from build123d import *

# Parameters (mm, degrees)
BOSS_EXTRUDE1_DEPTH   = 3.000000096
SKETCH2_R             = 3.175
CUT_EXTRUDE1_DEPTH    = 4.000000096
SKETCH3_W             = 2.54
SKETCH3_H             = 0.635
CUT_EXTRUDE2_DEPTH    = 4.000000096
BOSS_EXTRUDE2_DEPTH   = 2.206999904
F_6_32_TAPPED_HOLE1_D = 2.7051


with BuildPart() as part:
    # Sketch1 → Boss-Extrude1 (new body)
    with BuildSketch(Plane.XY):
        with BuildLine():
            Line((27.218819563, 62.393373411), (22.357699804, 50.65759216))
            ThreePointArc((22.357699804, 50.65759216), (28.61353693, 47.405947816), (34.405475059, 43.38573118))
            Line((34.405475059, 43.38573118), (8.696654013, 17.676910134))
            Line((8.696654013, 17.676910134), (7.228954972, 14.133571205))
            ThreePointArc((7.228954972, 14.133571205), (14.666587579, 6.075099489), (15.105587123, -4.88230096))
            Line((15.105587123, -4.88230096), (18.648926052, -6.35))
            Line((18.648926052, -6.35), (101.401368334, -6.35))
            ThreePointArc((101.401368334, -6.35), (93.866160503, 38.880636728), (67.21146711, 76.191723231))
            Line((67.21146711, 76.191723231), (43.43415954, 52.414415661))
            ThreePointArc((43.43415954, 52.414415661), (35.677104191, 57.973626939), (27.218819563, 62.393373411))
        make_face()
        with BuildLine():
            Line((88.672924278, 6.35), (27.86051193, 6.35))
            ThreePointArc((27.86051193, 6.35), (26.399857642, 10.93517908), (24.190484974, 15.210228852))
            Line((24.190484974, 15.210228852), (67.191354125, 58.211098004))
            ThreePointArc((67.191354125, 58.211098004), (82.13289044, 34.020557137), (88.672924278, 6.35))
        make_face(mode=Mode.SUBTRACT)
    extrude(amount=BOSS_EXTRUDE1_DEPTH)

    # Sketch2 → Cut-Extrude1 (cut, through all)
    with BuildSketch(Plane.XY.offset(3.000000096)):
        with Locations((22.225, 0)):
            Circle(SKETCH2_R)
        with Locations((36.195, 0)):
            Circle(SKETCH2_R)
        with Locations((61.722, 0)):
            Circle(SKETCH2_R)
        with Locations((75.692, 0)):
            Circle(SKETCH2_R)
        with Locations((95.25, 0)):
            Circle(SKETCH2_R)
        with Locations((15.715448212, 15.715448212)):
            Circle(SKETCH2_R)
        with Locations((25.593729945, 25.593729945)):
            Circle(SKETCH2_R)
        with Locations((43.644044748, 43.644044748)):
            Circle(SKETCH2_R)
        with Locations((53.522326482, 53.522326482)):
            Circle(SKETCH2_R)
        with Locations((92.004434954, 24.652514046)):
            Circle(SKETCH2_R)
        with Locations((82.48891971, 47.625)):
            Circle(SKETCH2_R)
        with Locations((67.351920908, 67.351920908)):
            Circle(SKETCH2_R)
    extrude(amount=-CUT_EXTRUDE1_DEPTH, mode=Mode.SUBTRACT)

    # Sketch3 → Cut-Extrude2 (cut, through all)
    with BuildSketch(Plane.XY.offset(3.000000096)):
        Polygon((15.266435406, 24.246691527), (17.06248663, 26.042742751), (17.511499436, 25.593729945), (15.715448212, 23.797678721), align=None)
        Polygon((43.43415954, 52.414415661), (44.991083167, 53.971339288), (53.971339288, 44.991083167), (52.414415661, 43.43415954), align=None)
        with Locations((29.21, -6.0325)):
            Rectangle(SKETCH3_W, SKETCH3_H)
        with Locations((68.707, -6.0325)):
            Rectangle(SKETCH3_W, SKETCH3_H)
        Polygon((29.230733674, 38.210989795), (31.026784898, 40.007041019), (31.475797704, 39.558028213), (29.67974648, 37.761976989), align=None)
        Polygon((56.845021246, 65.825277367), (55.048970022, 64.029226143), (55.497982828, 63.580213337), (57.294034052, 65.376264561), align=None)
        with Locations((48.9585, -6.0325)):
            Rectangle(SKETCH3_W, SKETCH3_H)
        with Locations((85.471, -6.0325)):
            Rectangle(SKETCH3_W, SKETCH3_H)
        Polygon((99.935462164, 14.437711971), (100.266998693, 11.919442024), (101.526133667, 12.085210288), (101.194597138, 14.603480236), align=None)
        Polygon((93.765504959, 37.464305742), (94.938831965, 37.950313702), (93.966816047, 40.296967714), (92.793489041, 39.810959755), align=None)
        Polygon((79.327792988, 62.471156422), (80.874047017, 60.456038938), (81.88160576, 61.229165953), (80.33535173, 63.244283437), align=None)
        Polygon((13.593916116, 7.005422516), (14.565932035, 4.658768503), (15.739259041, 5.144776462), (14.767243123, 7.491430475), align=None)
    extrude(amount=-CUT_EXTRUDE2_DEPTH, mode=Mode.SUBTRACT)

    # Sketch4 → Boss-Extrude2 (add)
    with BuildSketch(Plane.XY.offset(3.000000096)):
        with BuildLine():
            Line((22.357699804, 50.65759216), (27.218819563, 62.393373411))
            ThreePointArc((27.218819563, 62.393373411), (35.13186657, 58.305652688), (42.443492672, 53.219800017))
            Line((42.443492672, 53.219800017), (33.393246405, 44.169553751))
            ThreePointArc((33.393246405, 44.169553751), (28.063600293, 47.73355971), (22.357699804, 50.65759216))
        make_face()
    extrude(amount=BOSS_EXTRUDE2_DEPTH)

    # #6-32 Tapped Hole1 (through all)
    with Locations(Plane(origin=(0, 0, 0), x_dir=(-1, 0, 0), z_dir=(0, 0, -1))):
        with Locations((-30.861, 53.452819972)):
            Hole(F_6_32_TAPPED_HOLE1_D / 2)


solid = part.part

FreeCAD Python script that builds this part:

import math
import FreeCAD as App
import Part
import Sketcher

V = App.Vector
Q = App.Units.Quantity

doc = App.newDocument("Part")
body = doc.addObject("PartDesign::Body", "Body")

# Sketch on XY plane
sketch1 = body.newObject("Sketcher::SketchObject", "Sketch")
sketch1.AttachmentSupport = (doc.getObject("XY_Plane"), [""])
sketch1.MapMode = "FlatFace"
sketch1.addGeometry(Part.LineSegment(V(27.2, 62.4, 0), V(22.4, 50.7, 0)), False)
sketch1.addGeometry(Part.ArcOfCircle(Part.Circle(V(0, 0, 0), V(0, 0, 1), 55.4), math.radians(51.59), math.radians(66.19)), False)
sketch1.addGeometry(Part.LineSegment(V(34.4, 43.4, 0), V(8.7, 17.7, 0)), False)
sketch1.addGeometry(Part.LineSegment(V(8.7, 17.7, 0), V(7.2, 14.1, 0)), False)
sketch1.addGeometry(Part.ArcOfCircle(Part.Circle(V(0, 0, 0), V(0, 0, 1), 15.9), math.radians(-18), math.radians(63)), False)
sketch1.addGeometry(Part.LineSegment(V(15.1, -4.9, 0), V(18.6, -6.3, 0)), False)
sketch1.addGeometry(Part.LineSegment(V(18.6, -6.3, 0), V(101.4, -6.3, 0)), False)
sketch1.addGeometry(Part.ArcOfCircle(Part.Circle(V(0, 0, 0), V(0, 0, 1), 101.6), math.radians(-4), math.radians(49)), False)
sketch1.addGeometry(Part.LineSegment(V(67.2, 76.2, 0), V(43.4, 52.4, 0)), False)
sketch1.addGeometry(Part.ArcOfCircle(Part.Circle(V(0, 0, 0), V(0, 0, 1), 68.1), math.radians(50.35), math.radians(66.43)), False)
sketch1.addGeometry(Part.ArcOfCircle(Part.Circle(V(0, 0, 0), V(0, 0, 1), 88.9), math.radians(4), math.radians(41)), False)
sketch1.addGeometry(Part.LineSegment(V(88.7, 6.3, 0), V(27.9, 6.3, 0)), False)
sketch1.addGeometry(Part.ArcOfCircle(Part.Circle(V(0, 0, 0), V(0, 0, 1), 28.6), math.radians(12.84), math.radians(32.16)), False)
sketch1.addGeometry(Part.LineSegment(V(24.2, 15.2, 0), V(67.2, 58.2, 0)), False)
sketch1.addConstraint(Sketcher.Constraint("Coincident", 0, 2, 1, 2))
sketch1.addConstraint(Sketcher.Constraint("Coincident", 1, 1, 2, 1))
sketch1.addConstraint(Sketcher.Constraint("Coincident", 2, 2, 3, 1))
sketch1.addConstraint(Sketcher.Constraint("Coincident", 3, 2, 4, 2))
sketch1.addConstraint(Sketcher.Constraint("Coincident", 4, 1, 5, 1))
sketch1.addConstraint(Sketcher.Constraint("Coincident", 5, 2, 6, 1))
sketch1.addConstraint(Sketcher.Constraint("Coincident", 6, 2, 7, 1))
sketch1.addConstraint(Sketcher.Constraint("Coincident", 7, 2, 8, 1))
sketch1.addConstraint(Sketcher.Constraint("Coincident", 8, 2, 9, 1))
sketch1.addConstraint(Sketcher.Constraint("Coincident", 9, 2, 0, 1))
sketch1.addConstraint(Sketcher.Constraint("Coincident", 10, 1, 11, 1))
sketch1.addConstraint(Sketcher.Constraint("Coincident", 11, 2, 12, 1))
sketch1.addConstraint(Sketcher.Constraint("Coincident", 12, 2, 13, 1))
sketch1.addConstraint(Sketcher.Constraint("Coincident", 13, 2, 10, 2))
sketch1.addConstraint(Sketcher.Constraint("Horizontal", 6))
sketch1.addConstraint(Sketcher.Constraint("Horizontal", 11))
sketch1.addConstraint(Sketcher.Constraint("Coincident", 1, 3, -1, 1))
sketch1.addConstraint(Sketcher.Constraint("Coincident", 4, 3, -1, 1))
sketch1.addConstraint(Sketcher.Constraint("Coincident", 7, 3, -1, 1))
sketch1.addConstraint(Sketcher.Constraint("Coincident", 9, 3, -1, 1))
sketch1.addConstraint(Sketcher.Constraint("Coincident", 10, 3, -1, 1))
sketch1.addConstraint(Sketcher.Constraint("Coincident", 12, 3, -1, 1))
sketch1.addConstraint(Sketcher.Constraint("Parallel", 0, 3))
sketch1.addConstraint(Sketcher.Constraint("Perpendicular", 3, 5))
sketch1.addConstraint(Sketcher.Constraint("Parallel", 2, 8))
sketch1.addConstraint(Sketcher.Constraint("Parallel", 8, 13))
sketch1.addConstraint(Sketcher.Constraint("Equal", 3, 5))
sketch1.addConstraint(Sketcher.Constraint("Radius", 7, Q("4 in")))
sketch1.addConstraint(Sketcher.Constraint("Radius", 10, Q("3.5 in")))
sketch1.addConstraint(Sketcher.Constraint("Radius", 1, Q("2.18 in")))
sketch1.addConstraint(Sketcher.Constraint("Radius", 9, Q("2.68 in")))
sketch1.addConstraint(Sketcher.Constraint("Angle", 2, Q("-135 deg")))
sketch1.addConstraint(Sketcher.Constraint("Radius", 4, Q("0.625 in")))
sketch1.addConstraint(Sketcher.Constraint("Radius", 12, Q("1.125 in")))
sketch1.addConstraint(Sketcher.Constraint("Angle", 0, Q("-112.5 deg")))
sketch1.addConstraint(Sketcher.Constraint("DistanceY", 6, 2, 10, 1, Q("0.5 in")))
sketch1.addConstraint(Sketcher.Constraint("DistanceY", 5, 2, -1, 1, Q("0.25 in")))
sketch1.addConstraint(Sketcher.Constraint("DistanceX", -1, 1, 0, 2, 22.3577))
sketch1.addConstraint(Sketcher.Constraint("DistanceY", 4, 1, -1, 1, 4.882301))
sketch1.addConstraint(Sketcher.Constraint("DistanceY", -1, 1, 13, 2, 58.211098))
sketch1.addConstraint(Sketcher.Constraint("DistanceX", 7, 2, 6, 2, 34.189901))
sketch1.addConstraint(Sketcher.Constraint("DistanceY", -1, 1, 1, 1, 43.385731))
pad1 = body.newObject("PartDesign::Pad", "Pad")
pad1.Profile = sketch1
pad1.Length = 3

# Sketch on XY plane
sketch2 = body.newObject("Sketcher::SketchObject", "Sketch001")
sketch2.AttachmentSupport = (doc.getObject("XY_Plane"), [""])
sketch2.MapMode = "FlatFace"
sketch2.AttachmentOffset = App.Placement(V(0, 0, 3), App.Rotation())
sketch2.addGeometry(Part.Circle(V(22.2, 0, 0), V(0, 0, 1), 3.2), False)
sketch2.addGeometry(Part.Circle(V(36.2, 0, 0), V(0, 0, 1), 3.2), False)
sketch2.addGeometry(Part.Circle(V(61.7, 0, 0), V(0, 0, 1), 3.2), False)
sketch2.addGeometry(Part.Circle(V(75.7, 0, 0), V(0, 0, 1), 3.2), False)
sketch2.addGeometry(Part.Circle(V(95.2, 0, 0), V(0, 0, 1), 3.2), False)
sketch2.addGeometry(Part.Circle(V(15.7, 15.7, 0), V(0, 0, 1), 3.2), False)
sketch2.addGeometry(Part.Circle(V(25.6, 25.6, 0), V(0, 0, 1), 3.2), False)
sketch2.addGeometry(Part.Circle(V(43.6, 43.6, 0), V(0, 0, 1), 3.2), False)
sketch2.addGeometry(Part.Circle(V(53.5, 53.5, 0), V(0, 0, 1), 3.2), False)
sketch2.addGeometry(Part.Circle(V(92, 24.7, 0), V(0, 0, 1), 3.2), False)
sketch2.addGeometry(Part.Circle(V(82.5, 47.6, 0), V(0, 0, 1), 3.2), False)
sketch2.addGeometry(Part.Circle(V(67.4, 67.4, 0), V(0, 0, 1), 3.2), False)
sketch2.addConstraint(Sketcher.Constraint("Equal", 0, 1))
sketch2.addConstraint(Sketcher.Constraint("Equal", 1, 2))
sketch2.addConstraint(Sketcher.Constraint("Equal", 2, 3))
sketch2.addConstraint(Sketcher.Constraint("Equal", 3, 4))
sketch2.addConstraint(Sketcher.Constraint("Equal", 4, 5))
sketch2.addConstraint(Sketcher.Constraint("Equal", 5, 6))
sketch2.addConstraint(Sketcher.Constraint("Equal", 6, 7))
sketch2.addConstraint(Sketcher.Constraint("Equal", 7, 8))
sketch2.addConstraint(Sketcher.Constraint("Equal", 8, 9))
sketch2.addConstraint(Sketcher.Constraint("Equal", 9, 10))
sketch2.addConstraint(Sketcher.Constraint("Equal", 10, 11))
sketch2.addConstraint(Sketcher.Constraint("PointOnObject", 0, 3, -1))
sketch2.addConstraint(Sketcher.Constraint("PointOnObject", 1, 3, -1))
sketch2.addConstraint(Sketcher.Constraint("PointOnObject", 2, 3, -1))
sketch2.addConstraint(Sketcher.Constraint("PointOnObject", 3, 3, -1))
sketch2.addConstraint(Sketcher.Constraint("PointOnObject", 4, 3, -1))
sketch2.addConstraint(Sketcher.Constraint("Diameter", 0, Q("0.25 in")))
sketch2.addConstraint(Sketcher.Constraint("DistanceX", -1, 1, 2, 3, Q("2.43 in")))
sketch2.addConstraint(Sketcher.Constraint("DistanceX", -1, 1, 3, 3, Q("2.98 in")))
sketch2.addConstraint(Sketcher.Constraint("DistanceX", -1, 1, 4, 3, Q("3.75 in")))
sketch2.addConstraint(Sketcher.Constraint("DistanceX", 0, 3, 1, 3, Q("0.55 in")))
sketch2.addConstraint(Sketcher.Constraint("DistanceX", -1, 1, 0, 3, Q("0.875 in")))
sketch2.addConstraint(Sketcher.Constraint("DistanceY", -1, 1, 10, 3, Q("1.875 in")))
sketch2.addConstraint(Sketcher.Constraint("DistanceX", 11, 3, 10, 3, 15.136999))
sketch2.addConstraint(Sketcher.Constraint("DistanceX", -1, 1, 5, 3, 15.715448))
sketch2.addConstraint(Sketcher.Constraint("DistanceY", -1, 1, 5, 3, 15.715448))
sketch2.addConstraint(Sketcher.Constraint("DistanceX", -1, 1, 6, 3, 25.59373))
sketch2.addConstraint(Sketcher.Constraint("DistanceY", -1, 1, 6, 3, 25.59373))
sketch2.addConstraint(Sketcher.Constraint("DistanceX", -1, 1, 10, 3, 82.48892))
sketch2.addConstraint(Sketcher.Constraint("DistanceY", -1, 1, 11, 3, 67.351921))
sketch2.addConstraint(Sketcher.Constraint("DistanceX", 7, 3, 8, 3, 9.878282))
sketch2.addConstraint(Sketcher.Constraint("DistanceY", 7, 3, 8, 3, 9.878282))
sketch2.addConstraint(Sketcher.Constraint("DistanceX", 5, 3, 8, 3, 37.806878))
sketch2.addConstraint(Sketcher.Constraint("DistanceY", 5, 3, 8, 3, 37.806878))
sketch2.addConstraint(Sketcher.Constraint("DistanceX", 8, 3, 9, 3, 38.482108))
sketch2.addConstraint(Sketcher.Constraint("DistanceY", 9, 3, 7, 3, 18.991531))
pocket1 = body.newObject("PartDesign::Pocket", "Pocket")
pocket1.Profile = sketch2
pocket1.Type = "ThroughAll"

# Sketch on XY plane
sketch3 = body.newObject("Sketcher::SketchObject", "Sketch002")
sketch3.AttachmentSupport = (doc.getObject("XY_Plane"), [""])
sketch3.MapMode = "FlatFace"
sketch3.AttachmentOffset = App.Placement(V(0, 0, 3), App.Rotation())
sketch3.addGeometry(Part.LineSegment(V(17.1, 26, 0), V(15.3, 24.2, 0)), False)
sketch3.addGeometry(Part.LineSegment(V(15.3, 24.2, 0), V(15.7, 23.8, 0)), False)
sketch3.addGeometry(Part.LineSegment(V(15.7, 23.8, 0), V(17.5, 25.6, 0)), False)
sketch3.addGeometry(Part.LineSegment(V(17.5, 25.6, 0), V(17.1, 26, 0)), False)
sketch3.addGeometry(Part.LineSegment(V(45, 54, 0), V(43.4, 52.4, 0)), False)
sketch3.addGeometry(Part.LineSegment(V(43.4, 52.4, 0), V(52.4, 43.4, 0)), False)
sketch3.addGeometry(Part.LineSegment(V(52.4, 43.4, 0), V(54, 45, 0)), False)
sketch3.addGeometry(Part.LineSegment(V(54, 45, 0), V(45, 54, 0)), False)
sketch3.addGeometry(Part.LineSegment(V(27.9, -5.7, 0), V(27.9, -6.3, 0)), False)
sketch3.addGeometry(Part.LineSegment(V(27.9, -6.3, 0), V(30.5, -6.3, 0)), False)
sketch3.addGeometry(Part.LineSegment(V(30.5, -6.3, 0), V(30.5, -5.7, 0)), False)
sketch3.addGeometry(Part.LineSegment(V(30.5, -5.7, 0), V(27.9, -5.7, 0)), False)
sketch3.addGeometry(Part.LineSegment(V(67.4, -5.7, 0), V(67.4, -6.3, 0)), False)
sketch3.addGeometry(Part.LineSegment(V(67.4, -6.3, 0), V(70, -6.3, 0)), False)
sketch3.addGeometry(Part.LineSegment(V(70, -6.3, 0), V(70, -5.7, 0)), False)
sketch3.addGeometry(Part.LineSegment(V(70, -5.7, 0), V(67.4, -5.7, 0)), False)
sketch3.addGeometry(Part.LineSegment(V(31, 40, 0), V(29.2, 38.2, 0)), False)
sketch3.addGeometry(Part.LineSegment(V(29.2, 38.2, 0), V(29.7, 37.8, 0)), False)
sketch3.addGeometry(Part.LineSegment(V(29.7, 37.8, 0), V(31.5, 39.6, 0)), False)
sketch3.addGeometry(Part.LineSegment(V(31.5, 39.6, 0), V(31, 40, 0)), False)
sketch3.addGeometry(Part.LineSegment(V(56.8, 65.8, 0), V(55, 64, 0)), False)
sketch3.addGeometry(Part.LineSegment(V(55, 64, 0), V(55.5, 63.6, 0)), False)
sketch3.addGeometry(Part.LineSegment(V(55.5, 63.6, 0), V(57.3, 65.4, 0)), False)
sketch3.addGeometry(Part.LineSegment(V(57.3, 65.4, 0), V(56.8, 65.8, 0)), False)
sketch3.addGeometry(Part.LineSegment(V(47.7, -5.7, 0), V(47.7, -6.3, 0)), False)
sketch3.addGeometry(Part.LineSegment(V(47.7, -6.3, 0), V(50.2, -6.3, 0)), False)
sketch3.addGeometry(Part.LineSegment(V(50.2, -6.3, 0), V(50.2, -5.7, 0)), False)
sketch3.addGeometry(Part.LineSegment(V(50.2, -5.7, 0), V(47.7, -5.7, 0)), False)
sketch3.addGeometry(Part.LineSegment(V(84.2, -5.7, 0), V(84.2, -6.3, 0)), False)
sketch3.addGeometry(Part.LineSegment(V(84.2, -6.3, 0), V(86.7, -6.3, 0)), False)
sketch3.addGeometry(Part.LineSegment(V(86.7, -6.3, 0), V(86.7, -5.7, 0)), False)
sketch3.addGeometry(Part.LineSegment(V(86.7, -5.7, 0), V(84.2, -5.7, 0)), False)
sketch3.addGeometry(Part.LineSegment(V(99.9, 14.4, 0), V(100.3, 11.9, 0)), False)
sketch3.addGeometry(Part.LineSegment(V(100.3, 11.9, 0), V(101.5, 12.1, 0)), False)
sketch3.addGeometry(Part.LineSegment(V(101.5, 12.1, 0), V(101.2, 14.6, 0)), False)
sketch3.addGeometry(Part.LineSegment(V(101.2, 14.6, 0), V(99.9, 14.4, 0)), False)
sketch3.addGeometry(Part.LineSegment(V(93.8, 37.5, 0), V(94.9, 38, 0)), False)
sketch3.addGeometry(Part.LineSegment(V(94.9, 38, 0), V(94, 40.3, 0)), False)
sketch3.addGeometry(Part.LineSegment(V(94, 40.3, 0), V(92.8, 39.8, 0)), False)
sketch3.addGeometry(Part.LineSegment(V(92.8, 39.8, 0), V(93.8, 37.5, 0)), False)
sketch3.addGeometry(Part.LineSegment(V(79.3, 62.5, 0), V(80.9, 60.5, 0)), False)
sketch3.addGeometry(Part.LineSegment(V(80.9, 60.5, 0), V(81.9, 61.2, 0)), False)
sketch3.addGeometry(Part.LineSegment(V(81.9, 61.2, 0), V(80.3, 63.2, 0)), False)
sketch3.addGeometry(Part.LineSegment(V(80.3, 63.2, 0), V(79.3, 62.5, 0)), False)
sketch3.addGeometry(Part.LineSegment(V(13.6, 7, 0), V(14.6, 4.7, 0)), False)
sketch3.addGeometry(Part.LineSegment(V(14.6, 4.7, 0), V(15.7, 5.1, 0)), False)
sketch3.addGeometry(Part.LineSegment(V(15.7, 5.1, 0), V(14.8, 7.5, 0)), False)
sketch3.addGeometry(Part.LineSegment(V(14.8, 7.5, 0), V(13.6, 7, 0)), False)
sketch3.addConstraint(Sketcher.Constraint("Coincident", 0, 2, 1, 1))
sketch3.addConstraint(Sketcher.Constraint("Coincident", 1, 2, 2, 1))
sketch3.addConstraint(Sketcher.Constraint("Coincident", 2, 2, 3, 1))
sketch3.addConstraint(Sketcher.Constraint("Coincident", 3, 2, 0, 1))
sketch3.addConstraint(Sketcher.Constraint("Coincident", 4, 2, 5, 1))
sketch3.addConstraint(Sketcher.Constraint("Coincident", 5, 2, 6, 1))
sketch3.addConstraint(Sketcher.Constraint("Coincident", 6, 2, 7, 1))
sketch3.addConstraint(Sketcher.Constraint("Coincident", 7, 2, 4, 1))
sketch3.addConstraint(Sketcher.Constraint("Coincident", 8, 2, 9, 1))
sketch3.addConstraint(Sketcher.Constraint("Coincident", 9, 2, 10, 1))
sketch3.addConstraint(Sketcher.Constraint("Coincident", 10, 2, 11, 1))
sketch3.addConstraint(Sketcher.Constraint("Coincident", 11, 2, 8, 1))
sketch3.addConstraint(Sketcher.Constraint("Coincident", 12, 2, 13, 1))
sketch3.addConstraint(Sketcher.Constraint("Coincident", 13, 2, 14, 1))
sketch3.addConstraint(Sketcher.Constraint("Coincident", 14, 2, 15, 1))
sketch3.addConstraint(Sketcher.Constraint("Coincident", 15, 2, 12, 1))
sketch3.addConstraint(Sketcher.Constraint("Coincident", 16, 2, 17, 1))
sketch3.addConstraint(Sketcher.Constraint("Coincident", 17, 2, 18, 1))
sketch3.addConstraint(Sketcher.Constraint("Coincident", 18, 2, 19, 1))
sketch3.addConstraint(Sketcher.Constraint("Coincident", 19, 2, 16, 1))
sketch3.addConstraint(Sketcher.Constraint("Coincident", 20, 2, 21, 1))
sketch3.addConstraint(Sketcher.Constraint("Coincident", 21, 2, 22, 1))
sketch3.addConstraint(Sketcher.Constraint("Coincident", 22, 2, 23, 1))
sketch3.addConstraint(Sketcher.Constraint("Coincident", 23, 2, 20, 1))
sketch3.addConstraint(Sketcher.Constraint("Coincident", 24, 2, 25, 1))
sketch3.addConstraint(Sketcher.Constraint("Coincident", 25, 2, 26, 1))
sketch3.addConstraint(Sketcher.Constraint("Coincident", 26, 2, 27, 1))
sketch3.addConstraint(Sketcher.Constraint("Coincident", 27, 2, 24, 1))
sketch3.addConstraint(Sketcher.Constraint("Coincident", 28, 2, 29, 1))
sketch3.addConstraint(Sketcher.Constraint("Coincident", 29, 2, 30, 1))
sketch3.addConstraint(Sketcher.Constraint("Coincident", 30, 2, 31, 1))
sketch3.addConstraint(Sketcher.Constraint("Coincident", 31, 2, 28, 1))
sketch3.addConstraint(Sketcher.Constraint("Coincident", 32, 2, 33, 1))
sketch3.addConstraint(Sketcher.Constraint("Coincident", 33, 2, 34, 1))
sketch3.addConstraint(Sketcher.Constraint("Coincident", 34, 2, 35, 1))
sketch3.addConstraint(Sketcher.Constraint("Coincident", 35, 2, 32, 1))
sketch3.addConstraint(Sketcher.Constraint("Coincident", 36, 2, 37, 1))
sketch3.addConstraint(Sketcher.Constraint("Coincident", 37, 2, 38, 1))
sketch3.addConstraint(Sketcher.Constraint("Coincident", 38, 2, 39, 1))
sketch3.addConstraint(Sketcher.Constraint("Coincident", 39, 2, 36, 1))
sketch3.addConstraint(Sketcher.Constraint("Coincident", 40, 2, 41, 1))
sketch3.addConstraint(Sketcher.Constraint("Coincident", 41, 2, 42, 1))
sketch3.addConstraint(Sketcher.Constraint("Coincident", 42, 2, 43, 1))
sketch3.addConstraint(Sketcher.Constraint("Coincident", 43, 2, 40, 1))
sketch3.addConstraint(Sketcher.Constraint("Coincident", 44, 2, 45, 1))
sketch3.addConstraint(Sketcher.Constraint("Coincident", 45, 2, 46, 1))
sketch3.addConstraint(Sketcher.Constraint("Coincident", 46, 2, 47, 1))
sketch3.addConstraint(Sketcher.Constraint("Coincident", 47, 2, 44, 1))
sketch3.addConstraint(Sketcher.Constraint("Vertical", 8))
sketch3.addConstraint(Sketcher.Constraint("Horizontal", 9))
sketch3.addConstraint(Sketcher.Constraint("Vertical", 10))
sketch3.addConstraint(Sketcher.Constraint("Horizontal", 11))
sketch3.addConstraint(Sketcher.Constraint("Vertical", 12))
sketch3.addConstraint(Sketcher.Constraint("Horizontal", 13))
sketch3.addConstraint(Sketcher.Constraint("Vertical", 14))
sketch3.addConstraint(Sketcher.Constraint("Horizontal", 15))
sketch3.addConstraint(Sketcher.Constraint("Vertical", 24))
sketch3.addConstraint(Sketcher.Constraint("Horizontal", 25))
sketch3.addConstraint(Sketcher.Constraint("Vertical", 26))
sketch3.addConstraint(Sketcher.Constraint("Horizontal", 27))
sketch3.addConstraint(Sketcher.Constraint("Vertical", 28))
sketch3.addConstraint(Sketcher.Constraint("Horizontal", 29))
sketch3.addConstraint(Sketcher.Constraint("Vertical", 30))
sketch3.addConstraint(Sketcher.Constraint("Horizontal", 31))
sketch3.addConstraint(Sketcher.Constraint("Perpendicular", 0, 1))
sketch3.addConstraint(Sketcher.Constraint("Perpendicular", 1, 2))
sketch3.addConstraint(Sketcher.Constraint("Perpendicular", 2, 3))
sketch3.addConstraint(Sketcher.Constraint("Perpendicular", 3, 4))
sketch3.addConstraint(Sketcher.Constraint("Perpendicular", 4, 5))
sketch3.addConstraint(Sketcher.Constraint("Perpendicular", 5, 6))
sketch3.addConstraint(Sketcher.Constraint("Perpendicular", 6, 7))
sketch3.addConstraint(Sketcher.Constraint("Perpendicular", 7, 16))
sketch3.addConstraint(Sketcher.Constraint("Perpendicular", 16, 17))
sketch3.addConstraint(Sketcher.Constraint("Perpendicular", 17, 18))
sketch3.addConstraint(Sketcher.Constraint("Perpendicular", 18, 19))
sketch3.addConstraint(Sketcher.Constraint("Perpendicular", 19, 20))
sketch3.addConstraint(Sketcher.Constraint("Perpendicular", 20, 21))
sketch3.addConstraint(Sketcher.Constraint("Perpendicular", 21, 22))
sketch3.addConstraint(Sketcher.Constraint("Perpendicular", 22, 23))
sketch3.addConstraint(Sketcher.Constraint("Perpendicular", 32, 33))
sketch3.addConstraint(Sketcher.Constraint("Perpendicular", 33, 34))
sketch3.addConstraint(Sketcher.Constraint("Perpendicular", 34, 35))
sketch3.addConstraint(Sketcher.Constraint("Perpendicular", 36, 37))
sketch3.addConstraint(Sketcher.Constraint("Perpendicular", 37, 38))
sketch3.addConstraint(Sketcher.Constraint("Perpendicular", 38, 39))
sketch3.addConstraint(Sketcher.Constraint("Perpendicular", 40, 41))
sketch3.addConstraint(Sketcher.Constraint("Perpendicular", 41, 42))
sketch3.addConstraint(Sketcher.Constraint("Perpendicular", 42, 43))
sketch3.addConstraint(Sketcher.Constraint("Parallel", 39, 44))
sketch3.addConstraint(Sketcher.Constraint("Perpendicular", 44, 45))
sketch3.addConstraint(Sketcher.Constraint("Perpendicular", 45, 46))
sketch3.addConstraint(Sketcher.Constraint("Perpendicular", 46, 47))
sketch3.addConstraint(Sketcher.Constraint("Horizontal", 9, 2, 12, 2))
sketch3.addConstraint(Sketcher.Constraint("Horizontal", 11, 2, 14, 2))
sketch3.addConstraint(Sketcher.Constraint("Horizontal", 13, 2, 24, 2))
sketch3.addConstraint(Sketcher.Constraint("Horizontal", 15, 2, 26, 2))
sketch3.addConstraint(Sketcher.Constraint("Horizontal", 25, 2, 28, 2))
sketch3.addConstraint(Sketcher.Constraint("Horizontal", 27, 2, 30, 2))
sketch3.addConstraint(Sketcher.Constraint("Equal", 11, 13))
sketch3.addConstraint(Sketcher.Constraint("Equal", 15, 25))
sketch3.addConstraint(Sketcher.Constraint("Equal", 27, 29))
sketch3.addConstraint(Sketcher.Constraint("Equal", 2, 16))
sketch3.addConstraint(Sketcher.Constraint("Equal", 3, 17))
sketch3.addConstraint(Sketcher.Constraint("Equal", 18, 20))
sketch3.addConstraint(Sketcher.Constraint("Equal", 19, 21))
sketch3.addConstraint(Sketcher.Constraint("Equal", 22, 32))
sketch3.addConstraint(Sketcher.Constraint("Equal", 35, 36))
sketch3.addConstraint(Sketcher.Constraint("Equal", 34, 37))
sketch3.addConstraint(Sketcher.Constraint("Equal", 39, 40))
sketch3.addConstraint(Sketcher.Constraint("Equal", 38, 41))
sketch3.addConstraint(Sketcher.Constraint("Equal", 42, 44))
sketch3.addConstraint(Sketcher.Constraint("Equal", 43, 45))
sketch3.addConstraint(Sketcher.Constraint("DistanceX", 9, 1, 9, 2, Q("0.1 in")))
sketch3.addConstraint(Sketcher.Constraint("Angle", 0, Q("-135 deg")))
sketch3.addConstraint(Sketcher.Constraint("Distance", 0, Q("0.1 in")))
sketch3.addConstraint(Sketcher.Constraint("Distance", 5, Q("0.5 in")))
sketch3.addConstraint(Sketcher.Constraint("DistanceX", -1, 1, 8, 2, Q("1.1 in")))
sketch3.addConstraint(Sketcher.Constraint("Angle", 32, Q("-82.5 deg")))
sketch3.addConstraint(Sketcher.Constraint("Angle", 36, Q("22.5 deg")))
sketch3.addConstraint(Sketcher.Constraint("Angle", 40, Q("-52.5 deg")))
sketch3.addConstraint(Sketcher.Constraint("Distance", 33, Q("0.05 in")))
sketch3.addConstraint(Sketcher.Constraint("DistanceY", 8, 2, 8, 1, Q("0.025 in")))
sketch3.addConstraint(Sketcher.Constraint("DistanceY", 8, 2, -1, 1, Q("0.25 in")))
sketch3.addConstraint(Sketcher.Constraint("DistanceX", 13, 2, 28, 2, Q("0.56 in")))
sketch3.addConstraint(Sketcher.Constraint("Distance", 1, Q("0.025 in")))
sketch3.addConstraint(Sketcher.Constraint("DistanceX", -1, 1, 12, 2, Q("2.655 in")))
sketch3.addConstraint(Sketcher.Constraint("DistanceX", -1, 1, 24, 2, Q("1.8775 in")))
sketch3.addConstraint(Sketcher.Constraint("DistanceX", -1, 1, 2, 2, 17.511499))
sketch3.addConstraint(Sketcher.Constraint("DistanceX", -1, 1, 32, 2, 100.266999))
sketch3.addConstraint(Sketcher.Constraint("DistanceX", 0, 2, 16, 2, 13.964298))
sketch3.addConstraint(Sketcher.Constraint("DistanceY", 0, 2, 16, 2, 13.964298))
sketch3.addConstraint(Sketcher.Constraint("DistanceX", 7, 2, 21, 2, 10.5069))
sketch3.addConstraint(Sketcher.Constraint("DistanceY", 35, 2, 36, 2, 23.512602))
sketch3.addConstraint(Sketcher.Constraint("DistanceX", 36, 2, 33, 2, 6.587302))
sketch3.addConstraint(Sketcher.Constraint("DistanceY", 37, 2, 41, 2, 20.932198))
sketch3.addConstraint(Sketcher.Constraint("DistanceY", 41, 2, 22, 2, 4.147099))
sketch3.addConstraint(Sketcher.Constraint("DistanceY", 46, 2, 2, 2, 18.102299))
sketch3.addConstraint(Sketcher.Constraint("DistanceY", -1, 1, 0, 2, 24.246692))
sketch3.addConstraint(Sketcher.Constraint("DistanceX", -1, 1, 4, 2, 43.43416))
sketch3.addConstraint(Sketcher.Constraint("DistanceY", -1, 1, 5, 2, 43.43416))
sketch3.addConstraint(Sketcher.Constraint("DistanceX", -1, 1, 6, 2, 53.971339))
sketch3.addConstraint(Sketcher.Constraint("DistanceY", -1, 1, 33, 2, 12.08521))
sketch3.addConstraint(Sketcher.Constraint("DistanceX", -1, 1, 42, 2, 80.335352))
sketch3.addConstraint(Sketcher.Constraint("DistanceX", -1, 1, 45, 2, 15.739259))
pocket2 = body.newObject("PartDesign::Pocket", "Pocket001")
pocket2.Profile = sketch3
pocket2.Type = "ThroughAll"

# Sketch on XY plane
sketch4 = body.newObject("Sketcher::SketchObject", "Sketch003")
sketch4.AttachmentSupport = (doc.getObject("XY_Plane"), [""])
sketch4.MapMode = "FlatFace"
sketch4.AttachmentOffset = App.Placement(V(0, 0, 3), App.Rotation())
sketch4.addGeometry(Part.LineSegment(V(27, 62, 0), V(22, 51, 0)), False)
sketch4.addGeometry(Part.ArcOfCircle(Part.Circle(V(0, 0, 0), V(0, 0, 1), 55), math.radians(52.91), math.radians(66.19)), False)
sketch4.addGeometry(Part.LineSegment(V(33, 44, 0), V(42, 53, 0)), False)
sketch4.addGeometry(Part.ArcOfCircle(Part.Circle(V(0, 0, 0), V(0, 0, 1), 68), math.radians(51.43), math.radians(66.43)), False)
sketch4.addConstraint(Sketcher.Constraint("Coincident", 0, 2, 1, 2))
sketch4.addConstraint(Sketcher.Constraint("Coincident", 1, 1, 2, 1))
sketch4.addConstraint(Sketcher.Constraint("Coincident", 2, 2, 3, 1))
sketch4.addConstraint(Sketcher.Constraint("Coincident", 3, 2, 0, 1))
sketch4.addConstraint(Sketcher.Constraint("Coincident", 1, 3, -1, 1))
sketch4.addConstraint(Sketcher.Constraint("Coincident", 3, 3, -1, 1))
sketch4.addConstraint(Sketcher.Constraint("Radius", 1, Q("2.18 in")))
sketch4.addConstraint(Sketcher.Constraint("Radius", 3, Q("2.68 in")))
sketch4.addConstraint(Sketcher.Constraint("Angle", 2, Q("45 deg")))
sketch4.addConstraint(Sketcher.Constraint("Angle", 0, Q("-112.5 deg")))
sketch4.addConstraint(Sketcher.Constraint("DistanceX", -1, 1, 0, 2, 22.3577))
sketch4.addConstraint(Sketcher.Constraint("DistanceY", -1, 1, 2, 2, 53.2198))
pad2 = body.newObject("PartDesign::Pad", "Pad001")
pad2.Profile = sketch4
pad2.Length = 2.207

# Sketch on XY plane
sketch5 = body.newObject("Sketcher::SketchObject", "Sketch004")
sketch5.AttachmentSupport = (doc.getObject("XY_Plane"), [""])
sketch5.MapMode = "FlatFace"
sketch5.addGeometry(Part.Circle(V(30.9, 53.5, 0), V(0, 0, 1), 1.4), False)
sketch5.addConstraint(Sketcher.Constraint("Diameter", 0, Q("0.1065 in")))
sketch5.addConstraint(Sketcher.Constraint("DistanceX", -1, 1, 0, 3, Q("1.215 in")))
sketch5.addConstraint(Sketcher.Constraint("DistanceY", -1, 1, 0, 3, 53.45282))
doc.recompute()
hole = body.newObject("PartDesign::Hole", "Hole")
hole.Profile = sketch5
hole.ThreadType = "None"
hole.Diameter = Q("0.1065 in")
hole.DepthType = "ThroughAll"
hole.Reversed = True

doc.recompute()
